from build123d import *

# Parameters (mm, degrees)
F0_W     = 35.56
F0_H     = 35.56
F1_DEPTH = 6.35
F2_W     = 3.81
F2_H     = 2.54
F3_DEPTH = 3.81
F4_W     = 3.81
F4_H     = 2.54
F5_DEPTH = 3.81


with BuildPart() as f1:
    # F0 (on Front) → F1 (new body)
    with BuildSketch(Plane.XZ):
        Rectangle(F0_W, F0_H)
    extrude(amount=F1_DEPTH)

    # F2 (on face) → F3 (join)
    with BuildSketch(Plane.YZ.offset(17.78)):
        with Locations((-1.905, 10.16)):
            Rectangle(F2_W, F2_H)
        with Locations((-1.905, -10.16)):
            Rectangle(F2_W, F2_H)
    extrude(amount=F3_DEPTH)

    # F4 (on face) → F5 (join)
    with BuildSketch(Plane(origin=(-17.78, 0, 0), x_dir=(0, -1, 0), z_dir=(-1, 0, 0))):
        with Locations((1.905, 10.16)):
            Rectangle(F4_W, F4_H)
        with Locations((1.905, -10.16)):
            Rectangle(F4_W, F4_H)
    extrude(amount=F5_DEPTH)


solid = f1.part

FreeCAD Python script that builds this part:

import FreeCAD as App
import Part
import Sketcher
Q = App.Units.Quantity

doc = App.newDocument("Part")
body = doc.addObject("PartDesign::Body", "Body")

# Sketch on XZ plane
sketch1 = body.newObject("Sketcher::SketchObject", "Sketch")
sketch1.AttachmentSupport = (doc.getObject("XZ_Plane"), [""])
sketch1.MapMode = "FlatFace"
sketch1.addGeometry(Part.LineSegment(App.Vector(-17.78, 17.78, 0), App.Vector(-17.78, -17.78, 0)), False)
sketch1.addGeometry(Part.LineSegment(App.Vector(-17.78, -17.78, 0), App.Vector(17.78, -17.78, 0)), False)
sketch1.addGeometry(Part.LineSegment(App.Vector(17.78, -17.78, 0), App.Vector(17.78, 17.78, 0)), False)
sketch1.addGeometry(Part.LineSegment(App.Vector(17.78, 17.78, 0), App.Vector(-17.78, 17.78, 0)), False)
sketch1.addConstraint(Sketcher.Constraint("Coincident", 0, 2, 1, 1))
sketch1.addConstraint(Sketcher.Constraint("Coincident", 1, 2, 2, 1))
sketch1.addConstraint(Sketcher.Constraint("Coincident", 2, 2, 3, 1))
sketch1.addConstraint(Sketcher.Constraint("Coincident", 3, 2, 0, 1))
sketch1.addConstraint(Sketcher.Constraint("Vertical", 0))
sketch1.addConstraint(Sketcher.Constraint("Horizontal", 1))
sketch1.addConstraint(Sketcher.Constraint("Vertical", 2))
sketch1.addConstraint(Sketcher.Constraint("Horizontal", 3))
sketch1.addConstraint(Sketcher.Constraint("Symmetric", 0, 2, 2, 2, -1, 1))
sketch1.addConstraint(Sketcher.Constraint("Equal", 3, 0))
sketch1.addConstraint(Sketcher.Constraint("DistanceX", 1, 1, 1, 2, Q("1.4 in")))
pad1 = body.newObject("PartDesign::Pad", "Pad")
pad1.Profile = sketch1
pad1.Length = Q("0.25 in")

# Sketch on YZ plane
sketch2 = body.newObject("Sketcher::SketchObject", "Sketch001")
sketch2.AttachmentSupport = (doc.getObject("YZ_Plane"), [""])
sketch2.MapMode = "FlatFace"
sketch2.AttachmentOffset = App.Placement(App.Vector(0, 0, 0.7 * 25.4), App.Rotation())
sketch2.addGeometry(Part.LineSegment(App.Vector(-3.81, 11.43, 0), App.Vector(-3.81, 8.89, 0)), False)
sketch2.addGeometry(Part.LineSegment(App.Vector(-3.81, 8.89, 0), App.Vector(0, 8.89, 0)), False)
sketch2.addGeometry(Part.LineSegment(App.Vector(0, 8.89, 0), App.Vector(0, 11.43, 0)), False)
sketch2.addGeometry(Part.LineSegment(App.Vector(0, 11.43, 0), App.Vector(-3.81, 11.43, 0)), False)
sketch2.addGeometry(Part.LineSegment(App.Vector(-3.81, -8.89, 0), App.Vector(-3.81, -11.43, 0)), False)
sketch2.addGeometry(Part.LineSegment(App.Vector(-3.81, -11.43, 0), App.Vector(0, -11.43, 0)), False)
sketch2.addGeometry(Part.LineSegment(App.Vector(0, -11.43, 0), App.Vector(0, -8.89, 0)), False)
sketch2.addGeometry(Part.LineSegment(App.Vector(0, -8.89, 0), App.Vector(-3.81, -8.89, 0)), False)
sketch2.addConstraint(Sketcher.Constraint("Coincident", 0, 2, 1, 1))
sketch2.addConstraint(Sketcher.Constraint("Coincident", 1, 2, 2, 1))
sketch2.addConstraint(Sketcher.Constraint("Coincident", 2, 2, 3, 1))
sketch2.addConstraint(Sketcher.Constraint("Coincident", 3, 2, 0, 1))
sketch2.addConstraint(Sketcher.Constraint("Coincident", 4, 2, 5, 1))
sketch2.addConstraint(Sketcher.Constraint("Coincident", 5, 2, 6, 1))
sketch2.addConstraint(Sketcher.Constraint("Coincident", 6, 2, 7, 1))
sketch2.addConstraint(Sketcher.Constraint("Coincident", 7, 2, 4, 1))
sketch2.addConstraint(Sketcher.Constraint("Vertical", 0))
sketch2.addConstraint(Sketcher.Constraint("Horizontal", 1))
sketch2.addConstraint(Sketcher.Constraint("Vertical", 2))
sketch2.addConstraint(Sketcher.Constraint("Horizontal", 3))
sketch2.addConstraint(Sketcher.Constraint("Vertical", 4))
sketch2.addConstraint(Sketcher.Constraint("Horizontal", 5))
sketch2.addConstraint(Sketcher.Constraint("Vertical", 6))
sketch2.addConstraint(Sketcher.Constraint("Horizontal", 7))
sketch2.addConstraint(Sketcher.Constraint("Symmetric", 2, 2, 5, 2, -1, 1))
sketch2.addConstraint(Sketcher.Constraint("Symmetric", 1, 2, 6, 2, -1))
sketch2.addConstraint(Sketcher.Constraint("Vertical", 3, 2, 4, 2))
sketch2.addConstraint(Sketcher.Constraint("DistanceY", 0, 2, 0, 1, Q("0.1 in")))
sketch2.addConstraint(Sketcher.Constraint("DistanceX", 1, 1, 1, 2, Q("0.15 in")))
sketch2.addConstraint(Sketcher.Constraint("DistanceY", 4, 2, 0, 2, Q("0.8 in")))
pad2 = body.newObject("PartDesign::Pad", "Pad001")
pad2.Profile = sketch2
pad2.Length = Q("0.15 in")

# Sketch on YZ plane
sketch3 = body.newObject("Sketcher::SketchObject", "Sketch002")
sketch3.AttachmentSupport = (doc.getObject("YZ_Plane"), [""])
sketch3.MapMode = "FlatFace"
sketch3.AttachmentOffset = App.Placement(App.Vector(0, 0, -0.7 * 25.4), App.Rotation())
sketch3.addGeometry(Part.LineSegment(App.Vector(0, 11.43, 0), App.Vector(0, 8.89, 0)), False)
sketch3.addGeometry(Part.LineSegment(App.Vector(0, 8.89, 0), App.Vector(-3.81, 8.89, 0)), False)
sketch3.addGeometry(Part.LineSegment(App.Vector(-3.81, 8.89, 0), App.Vector(-3.81, 11.43, 0)), False)
sketch3.addGeometry(Part.LineSegment(App.Vector(-3.81, 11.43, 0), App.Vector(0, 11.43, 0)), False)
sketch3.addGeometry(Part.LineSegment(App.Vector(0, -8.89, 0), App.Vector(0, -11.43, 0)), False)
sketch3.addGeometry(Part.LineSegment(App.Vector(0, -11.43, 0), App.Vector(-3.81, -11.43, 0)), False)
sketch3.addGeometry(Part.LineSegment(App.Vector(-3.81, -11.43, 0), App.Vector(-3.81, -8.89, 0)), False)
sketch3.addGeometry(Part.LineSegment(App.Vector(-3.81, -8.89, 0), App.Vector(0, -8.89, 0)), False)
sketch3.addConstraint(Sketcher.Constraint("Coincident", 0, 2, 1, 1))
sketch3.addConstraint(Sketcher.Constraint("Coincident", 1, 2, 2, 1))
sketch3.addConstraint(Sketcher.Constraint("Coincident", 2, 2, 3, 1))
sketch3.addConstraint(Sketcher.Constraint("Coincident", 3, 2, 0, 1))
sketch3.addConstraint(Sketcher.Constraint("Coincident", 4, 2, 5, 1))
sketch3.addConstraint(Sketcher.Constraint("Coincident", 5, 2, 6, 1))
sketch3.addConstraint(Sketcher.Constraint("Coincident", 6, 2, 7, 1))
sketch3.addConstraint(Sketcher.Constraint("Coincident", 7, 2, 4, 1))
sketch3.addConstraint(Sketcher.Constraint("Vertical", 0))
sketch3.addConstraint(Sketcher.Constraint("Horizontal", 1))
sketch3.addConstraint(Sketcher.Constraint("Vertical", 2))
sketch3.addConstraint(Sketcher.Constraint("Horizontal", 3))
sketch3.addConstraint(Sketcher.Constraint("Vertical", 4))
sketch3.addConstraint(Sketcher.Constraint("Horizontal", 5))
sketch3.addConstraint(Sketcher.Constraint("Vertical", 6))
sketch3.addConstraint(Sketcher.Constraint("Horizontal", 7))
sketch3.addConstraint(Sketcher.Constraint("Symmetric", 3, 2, 4, 2, -1, 1))
sketch3.addConstraint(Sketcher.Constraint("Symmetric", 1, 2, 6, 2, -1))
sketch3.addConstraint(Sketcher.Constraint("PointOnObject", 0, 2, -2))
sketch3.addConstraint(Sketcher.Constraint("DistanceY", 0, 2, 0, 1, Q("0.1 in")))
sketch3.addConstraint(Sketcher.Constraint("DistanceX", 1, 2, 1, 1, Q("0.15 in")))
sketch3.addConstraint(Sketcher.Constraint("DistanceY", 4, 2, 0, 2, Q("0.8 in")))
pad3 = body.newObject("PartDesign::Pad", "Pad002")
pad3.Profile = sketch3
pad3.Length = Q("0.15 in")
pad3.Reversed = True

doc.recompute()
